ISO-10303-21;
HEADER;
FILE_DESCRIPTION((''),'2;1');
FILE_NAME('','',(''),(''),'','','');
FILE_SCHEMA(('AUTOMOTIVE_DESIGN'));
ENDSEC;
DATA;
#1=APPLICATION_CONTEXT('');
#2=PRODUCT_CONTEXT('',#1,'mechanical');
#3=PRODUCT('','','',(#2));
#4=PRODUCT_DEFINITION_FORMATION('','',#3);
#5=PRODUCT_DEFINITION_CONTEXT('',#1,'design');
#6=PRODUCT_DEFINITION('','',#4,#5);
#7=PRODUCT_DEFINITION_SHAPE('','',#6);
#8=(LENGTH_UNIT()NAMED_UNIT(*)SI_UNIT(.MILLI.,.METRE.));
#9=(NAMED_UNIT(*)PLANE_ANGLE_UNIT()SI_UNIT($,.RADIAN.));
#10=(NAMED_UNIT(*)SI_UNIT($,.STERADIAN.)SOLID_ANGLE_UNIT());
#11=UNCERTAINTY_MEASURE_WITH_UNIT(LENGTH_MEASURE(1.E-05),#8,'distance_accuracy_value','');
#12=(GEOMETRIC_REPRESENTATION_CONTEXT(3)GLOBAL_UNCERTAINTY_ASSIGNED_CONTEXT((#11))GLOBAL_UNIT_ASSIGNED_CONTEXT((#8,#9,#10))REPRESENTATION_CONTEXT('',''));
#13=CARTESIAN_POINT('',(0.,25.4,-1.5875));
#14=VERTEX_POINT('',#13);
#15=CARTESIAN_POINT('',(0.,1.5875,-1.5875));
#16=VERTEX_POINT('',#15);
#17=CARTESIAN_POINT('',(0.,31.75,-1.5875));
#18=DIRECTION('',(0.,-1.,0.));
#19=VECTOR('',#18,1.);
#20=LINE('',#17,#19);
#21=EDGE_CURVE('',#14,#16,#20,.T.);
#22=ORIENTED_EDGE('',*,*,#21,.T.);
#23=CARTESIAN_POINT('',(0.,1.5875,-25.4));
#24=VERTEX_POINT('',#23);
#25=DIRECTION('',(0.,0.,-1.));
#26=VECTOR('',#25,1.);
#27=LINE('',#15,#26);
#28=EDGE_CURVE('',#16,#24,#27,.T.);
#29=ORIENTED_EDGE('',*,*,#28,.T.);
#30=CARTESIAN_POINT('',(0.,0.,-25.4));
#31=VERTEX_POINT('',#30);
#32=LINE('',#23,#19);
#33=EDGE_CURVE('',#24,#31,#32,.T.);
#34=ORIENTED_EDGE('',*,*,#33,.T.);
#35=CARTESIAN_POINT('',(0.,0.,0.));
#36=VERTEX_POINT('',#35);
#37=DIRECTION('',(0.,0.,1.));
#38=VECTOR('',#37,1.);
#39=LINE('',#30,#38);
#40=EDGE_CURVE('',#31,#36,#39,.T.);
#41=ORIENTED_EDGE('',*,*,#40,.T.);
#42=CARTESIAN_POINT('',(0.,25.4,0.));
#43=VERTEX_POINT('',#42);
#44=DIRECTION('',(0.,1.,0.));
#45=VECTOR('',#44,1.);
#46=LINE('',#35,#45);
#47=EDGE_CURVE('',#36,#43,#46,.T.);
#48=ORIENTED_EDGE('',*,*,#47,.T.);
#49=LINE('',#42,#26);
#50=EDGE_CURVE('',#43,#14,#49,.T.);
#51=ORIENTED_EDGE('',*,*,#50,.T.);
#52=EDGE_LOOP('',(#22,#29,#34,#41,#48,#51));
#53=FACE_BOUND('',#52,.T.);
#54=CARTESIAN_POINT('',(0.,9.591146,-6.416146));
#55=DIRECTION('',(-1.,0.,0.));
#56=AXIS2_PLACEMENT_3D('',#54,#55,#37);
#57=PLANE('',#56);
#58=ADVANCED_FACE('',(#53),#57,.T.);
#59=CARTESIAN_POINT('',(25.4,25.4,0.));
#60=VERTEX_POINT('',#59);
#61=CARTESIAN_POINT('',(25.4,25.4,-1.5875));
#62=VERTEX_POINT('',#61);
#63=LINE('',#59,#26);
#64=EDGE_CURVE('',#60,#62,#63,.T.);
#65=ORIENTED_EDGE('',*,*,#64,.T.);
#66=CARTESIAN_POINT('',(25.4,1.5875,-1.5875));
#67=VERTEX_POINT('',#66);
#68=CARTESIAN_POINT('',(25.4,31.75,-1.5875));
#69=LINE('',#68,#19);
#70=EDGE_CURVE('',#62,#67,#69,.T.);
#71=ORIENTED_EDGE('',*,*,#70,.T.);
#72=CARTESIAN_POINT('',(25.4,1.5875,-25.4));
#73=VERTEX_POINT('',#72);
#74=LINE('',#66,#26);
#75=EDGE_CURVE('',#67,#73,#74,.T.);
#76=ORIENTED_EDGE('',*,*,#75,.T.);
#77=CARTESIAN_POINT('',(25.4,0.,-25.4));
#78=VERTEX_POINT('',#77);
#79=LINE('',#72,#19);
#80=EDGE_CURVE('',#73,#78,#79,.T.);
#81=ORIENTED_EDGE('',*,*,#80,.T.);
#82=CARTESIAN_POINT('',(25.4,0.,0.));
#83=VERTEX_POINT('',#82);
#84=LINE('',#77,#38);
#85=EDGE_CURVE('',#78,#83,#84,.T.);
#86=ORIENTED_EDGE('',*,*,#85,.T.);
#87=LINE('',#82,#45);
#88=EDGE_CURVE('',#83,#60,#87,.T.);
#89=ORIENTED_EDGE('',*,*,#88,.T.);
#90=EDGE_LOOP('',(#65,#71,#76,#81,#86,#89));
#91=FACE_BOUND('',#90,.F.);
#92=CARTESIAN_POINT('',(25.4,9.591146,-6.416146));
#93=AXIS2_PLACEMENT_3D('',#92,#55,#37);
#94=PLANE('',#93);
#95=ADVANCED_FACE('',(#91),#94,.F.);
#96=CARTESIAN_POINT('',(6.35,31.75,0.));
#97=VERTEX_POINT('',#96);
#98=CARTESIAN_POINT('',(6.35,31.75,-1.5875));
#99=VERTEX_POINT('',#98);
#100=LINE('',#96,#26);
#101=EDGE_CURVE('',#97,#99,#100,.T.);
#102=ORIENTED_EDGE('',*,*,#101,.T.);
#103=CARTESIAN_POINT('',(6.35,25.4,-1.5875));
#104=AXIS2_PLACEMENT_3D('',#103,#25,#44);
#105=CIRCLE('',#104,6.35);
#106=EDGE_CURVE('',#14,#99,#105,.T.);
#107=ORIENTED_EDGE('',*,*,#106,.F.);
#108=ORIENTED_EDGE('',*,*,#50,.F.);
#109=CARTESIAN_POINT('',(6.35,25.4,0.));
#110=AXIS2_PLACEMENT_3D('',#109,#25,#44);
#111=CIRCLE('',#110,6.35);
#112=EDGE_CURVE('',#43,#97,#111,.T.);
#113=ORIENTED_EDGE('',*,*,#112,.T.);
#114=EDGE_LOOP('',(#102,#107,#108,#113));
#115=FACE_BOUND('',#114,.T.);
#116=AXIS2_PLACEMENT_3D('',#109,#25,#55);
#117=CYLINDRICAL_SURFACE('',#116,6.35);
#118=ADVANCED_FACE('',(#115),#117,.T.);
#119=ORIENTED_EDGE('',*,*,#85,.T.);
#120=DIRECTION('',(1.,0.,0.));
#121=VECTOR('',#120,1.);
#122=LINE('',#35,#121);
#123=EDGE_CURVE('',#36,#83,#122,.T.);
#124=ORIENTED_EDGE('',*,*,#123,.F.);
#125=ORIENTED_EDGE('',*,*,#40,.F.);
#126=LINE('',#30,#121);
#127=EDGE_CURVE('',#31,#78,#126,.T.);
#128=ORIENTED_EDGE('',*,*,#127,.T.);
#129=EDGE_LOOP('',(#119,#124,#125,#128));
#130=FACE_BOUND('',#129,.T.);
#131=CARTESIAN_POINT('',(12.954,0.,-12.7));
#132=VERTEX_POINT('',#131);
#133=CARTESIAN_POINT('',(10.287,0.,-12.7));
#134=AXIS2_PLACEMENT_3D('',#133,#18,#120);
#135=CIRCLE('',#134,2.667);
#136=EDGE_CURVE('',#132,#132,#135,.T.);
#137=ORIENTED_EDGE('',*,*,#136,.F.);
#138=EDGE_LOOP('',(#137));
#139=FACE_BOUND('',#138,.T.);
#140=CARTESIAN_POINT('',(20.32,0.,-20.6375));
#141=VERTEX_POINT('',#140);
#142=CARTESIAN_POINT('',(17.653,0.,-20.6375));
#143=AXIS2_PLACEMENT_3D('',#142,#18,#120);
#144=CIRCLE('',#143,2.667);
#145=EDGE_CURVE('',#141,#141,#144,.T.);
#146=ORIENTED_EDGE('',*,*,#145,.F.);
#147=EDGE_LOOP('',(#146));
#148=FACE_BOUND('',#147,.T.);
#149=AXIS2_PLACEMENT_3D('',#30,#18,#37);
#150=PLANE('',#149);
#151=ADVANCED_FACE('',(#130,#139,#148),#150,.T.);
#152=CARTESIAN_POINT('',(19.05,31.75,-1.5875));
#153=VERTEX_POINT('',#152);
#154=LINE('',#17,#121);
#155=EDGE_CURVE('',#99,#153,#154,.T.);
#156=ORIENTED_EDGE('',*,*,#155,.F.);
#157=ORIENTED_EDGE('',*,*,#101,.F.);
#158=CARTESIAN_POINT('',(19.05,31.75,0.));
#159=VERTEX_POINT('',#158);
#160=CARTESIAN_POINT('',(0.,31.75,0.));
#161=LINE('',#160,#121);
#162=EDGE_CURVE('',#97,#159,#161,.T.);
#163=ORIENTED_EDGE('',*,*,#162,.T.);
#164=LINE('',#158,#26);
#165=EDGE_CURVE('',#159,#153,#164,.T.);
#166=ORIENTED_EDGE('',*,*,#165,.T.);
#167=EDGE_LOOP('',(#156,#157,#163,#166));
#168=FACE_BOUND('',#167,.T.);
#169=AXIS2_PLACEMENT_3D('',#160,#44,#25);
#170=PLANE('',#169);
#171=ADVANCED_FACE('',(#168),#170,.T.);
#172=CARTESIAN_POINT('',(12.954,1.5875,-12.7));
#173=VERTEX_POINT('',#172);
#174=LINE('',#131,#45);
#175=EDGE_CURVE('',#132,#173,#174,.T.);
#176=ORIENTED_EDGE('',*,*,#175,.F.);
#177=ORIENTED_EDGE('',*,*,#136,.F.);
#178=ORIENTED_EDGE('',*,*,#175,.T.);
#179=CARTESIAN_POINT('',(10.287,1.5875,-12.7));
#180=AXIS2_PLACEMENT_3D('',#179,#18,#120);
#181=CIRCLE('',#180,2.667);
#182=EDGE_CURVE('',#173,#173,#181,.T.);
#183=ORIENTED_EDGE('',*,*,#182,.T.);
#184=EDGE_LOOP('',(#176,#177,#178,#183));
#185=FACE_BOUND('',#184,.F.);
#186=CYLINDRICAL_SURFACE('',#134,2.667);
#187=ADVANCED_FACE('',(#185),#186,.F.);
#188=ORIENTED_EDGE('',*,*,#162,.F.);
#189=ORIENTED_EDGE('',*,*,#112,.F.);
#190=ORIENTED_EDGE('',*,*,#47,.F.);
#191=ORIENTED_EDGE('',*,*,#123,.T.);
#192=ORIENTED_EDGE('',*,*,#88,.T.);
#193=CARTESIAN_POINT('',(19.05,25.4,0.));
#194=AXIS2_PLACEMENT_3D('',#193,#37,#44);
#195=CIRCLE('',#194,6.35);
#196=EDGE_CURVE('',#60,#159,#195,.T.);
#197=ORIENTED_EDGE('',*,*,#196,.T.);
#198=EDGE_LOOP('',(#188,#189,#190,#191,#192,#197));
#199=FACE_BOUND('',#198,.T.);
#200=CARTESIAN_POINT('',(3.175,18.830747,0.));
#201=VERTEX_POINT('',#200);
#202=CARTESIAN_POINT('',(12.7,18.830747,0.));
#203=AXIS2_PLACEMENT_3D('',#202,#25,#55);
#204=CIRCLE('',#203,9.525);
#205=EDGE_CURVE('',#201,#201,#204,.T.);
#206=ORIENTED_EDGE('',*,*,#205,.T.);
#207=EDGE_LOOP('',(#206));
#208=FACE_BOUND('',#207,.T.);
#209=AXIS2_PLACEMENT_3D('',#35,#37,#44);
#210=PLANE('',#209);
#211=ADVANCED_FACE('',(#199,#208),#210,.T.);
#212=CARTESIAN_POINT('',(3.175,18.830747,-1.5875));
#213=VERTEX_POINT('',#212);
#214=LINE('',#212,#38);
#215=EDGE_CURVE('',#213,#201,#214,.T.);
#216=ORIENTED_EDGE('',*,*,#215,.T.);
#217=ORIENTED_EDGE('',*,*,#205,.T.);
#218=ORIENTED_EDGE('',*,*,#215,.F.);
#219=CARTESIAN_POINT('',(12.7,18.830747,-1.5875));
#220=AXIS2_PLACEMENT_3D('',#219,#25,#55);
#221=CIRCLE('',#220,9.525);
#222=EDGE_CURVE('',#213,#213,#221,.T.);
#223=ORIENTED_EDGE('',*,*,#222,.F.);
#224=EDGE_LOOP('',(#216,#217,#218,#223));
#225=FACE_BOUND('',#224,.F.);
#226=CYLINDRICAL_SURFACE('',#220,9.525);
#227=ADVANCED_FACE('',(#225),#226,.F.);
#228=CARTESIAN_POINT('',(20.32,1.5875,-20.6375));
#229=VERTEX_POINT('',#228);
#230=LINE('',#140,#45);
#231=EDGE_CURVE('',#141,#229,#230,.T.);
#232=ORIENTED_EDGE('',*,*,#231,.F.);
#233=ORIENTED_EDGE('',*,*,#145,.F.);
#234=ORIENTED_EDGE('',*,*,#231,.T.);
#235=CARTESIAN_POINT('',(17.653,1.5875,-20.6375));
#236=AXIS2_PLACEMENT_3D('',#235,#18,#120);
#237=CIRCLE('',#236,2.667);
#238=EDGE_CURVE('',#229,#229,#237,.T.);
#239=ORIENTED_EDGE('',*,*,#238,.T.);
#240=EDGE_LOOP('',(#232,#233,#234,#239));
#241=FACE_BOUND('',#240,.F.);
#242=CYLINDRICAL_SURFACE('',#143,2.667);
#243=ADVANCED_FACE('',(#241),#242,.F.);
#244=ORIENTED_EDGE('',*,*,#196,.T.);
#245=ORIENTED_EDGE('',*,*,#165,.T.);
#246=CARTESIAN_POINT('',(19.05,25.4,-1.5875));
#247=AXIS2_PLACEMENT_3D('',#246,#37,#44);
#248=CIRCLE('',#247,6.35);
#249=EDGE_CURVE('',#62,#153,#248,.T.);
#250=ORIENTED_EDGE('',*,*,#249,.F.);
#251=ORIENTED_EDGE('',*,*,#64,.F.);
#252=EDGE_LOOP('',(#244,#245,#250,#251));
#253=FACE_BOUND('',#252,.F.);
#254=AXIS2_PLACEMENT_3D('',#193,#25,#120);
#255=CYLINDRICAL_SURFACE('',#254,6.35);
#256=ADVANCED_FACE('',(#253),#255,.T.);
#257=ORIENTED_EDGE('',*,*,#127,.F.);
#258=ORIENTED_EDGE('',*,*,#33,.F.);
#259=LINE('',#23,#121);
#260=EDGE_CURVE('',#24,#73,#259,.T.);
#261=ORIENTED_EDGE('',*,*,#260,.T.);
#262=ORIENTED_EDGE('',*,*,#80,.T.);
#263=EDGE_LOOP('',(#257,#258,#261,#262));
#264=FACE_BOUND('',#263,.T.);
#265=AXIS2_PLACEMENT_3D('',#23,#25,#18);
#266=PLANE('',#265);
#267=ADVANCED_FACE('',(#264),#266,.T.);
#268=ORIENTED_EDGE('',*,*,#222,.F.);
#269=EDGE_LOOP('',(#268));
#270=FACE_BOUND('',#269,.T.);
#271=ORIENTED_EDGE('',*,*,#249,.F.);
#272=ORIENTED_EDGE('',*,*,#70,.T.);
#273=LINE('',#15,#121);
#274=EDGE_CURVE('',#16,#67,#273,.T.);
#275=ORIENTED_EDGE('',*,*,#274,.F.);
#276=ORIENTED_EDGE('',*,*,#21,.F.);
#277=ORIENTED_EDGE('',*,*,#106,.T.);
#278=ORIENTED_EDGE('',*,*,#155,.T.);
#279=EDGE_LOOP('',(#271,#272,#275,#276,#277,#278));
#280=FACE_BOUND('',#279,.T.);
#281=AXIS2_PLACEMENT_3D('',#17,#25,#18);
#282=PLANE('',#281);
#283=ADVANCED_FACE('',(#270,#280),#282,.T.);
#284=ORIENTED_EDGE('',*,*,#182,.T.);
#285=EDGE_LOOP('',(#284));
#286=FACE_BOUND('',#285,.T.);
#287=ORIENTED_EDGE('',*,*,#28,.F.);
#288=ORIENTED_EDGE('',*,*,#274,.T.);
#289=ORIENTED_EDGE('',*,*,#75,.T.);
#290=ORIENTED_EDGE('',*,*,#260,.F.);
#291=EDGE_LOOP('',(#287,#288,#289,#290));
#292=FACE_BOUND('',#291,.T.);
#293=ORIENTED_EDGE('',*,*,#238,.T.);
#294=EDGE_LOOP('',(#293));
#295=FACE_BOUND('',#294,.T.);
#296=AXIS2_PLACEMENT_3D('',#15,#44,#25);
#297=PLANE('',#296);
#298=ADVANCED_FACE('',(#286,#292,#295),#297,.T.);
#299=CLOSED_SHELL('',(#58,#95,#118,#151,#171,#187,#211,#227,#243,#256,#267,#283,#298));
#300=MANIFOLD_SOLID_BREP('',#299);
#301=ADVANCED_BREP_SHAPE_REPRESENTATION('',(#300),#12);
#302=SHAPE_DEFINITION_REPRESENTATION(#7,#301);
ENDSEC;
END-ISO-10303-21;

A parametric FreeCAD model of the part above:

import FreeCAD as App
import Part
import Sketcher

V = App.Vector
Q = App.Units.Quantity


def edges_at(feature, points):
    """Names of the edges that pass closest to the given points."""
    edges = feature.Shape.Edges
    near = lambda p: min(range(len(edges)), key=lambda i: edges[i].distToShape(Part.Vertex(*p))[0])
    return sorted({f"Edge{near(p) + 1}" for p in points})


def add_polygon(sketch, points):
    """Adds a closed chain of lines whose ends are joined by coincident constraints."""
    first, n = sketch.GeometryCount, len(points)
    for a, b in zip(points, points[1:] + points[:1]):
        sketch.addGeometry(Part.LineSegment(App.Vector(*a, 0), App.Vector(*b, 0)), False)
    for i in range(n):
        sketch.addConstraint(Sketcher.Constraint("Coincident", first + i, 2, first + (i + 1) % n, 1))

doc = App.newDocument("Part")
body = doc.addObject("PartDesign::Body", "Body")

# Sketch on YZ plane
sketch1 = body.newObject("Sketcher::SketchObject", "Sketch")
sketch1.AttachmentSupport = (doc.getObject("YZ_Plane"), [""])
sketch1.MapMode = "FlatFace"
add_polygon(sketch1, [(1.6, -25.4), (1.6, -1.6), (31.8, -1.6), (31.8, 0), (0, 0), (0, -25.4)])  # lines 0-5
sketch1.addConstraint(Sketcher.Constraint("Vertical", 0))
sketch1.addConstraint(Sketcher.Constraint("Horizontal", 1))
sketch1.addConstraint(Sketcher.Constraint("Vertical", 2))
sketch1.addConstraint(Sketcher.Constraint("Horizontal", 3))
sketch1.addConstraint(Sketcher.Constraint("Vertical", 4))
sketch1.addConstraint(Sketcher.Constraint("Horizontal", 5))
sketch1.addConstraint(Sketcher.Constraint("Coincident", 3, 2, -1, 1))
sketch1.addConstraint(Sketcher.Constraint("Equal", 5, 2))
sketch1.addConstraint(Sketcher.Constraint("DistanceY", 4, 2, 4, 1, Q("1 in")))
sketch1.addConstraint(Sketcher.Constraint("DistanceX", 3, 2, 3, 1, Q("1.25 in")))
sketch1.addConstraint(Sketcher.Constraint("DistanceX", 1, 1, 1, 2, Q("1.1875 in")))
pad1 = body.newObject("PartDesign::Pad", "Pad")
pad1.Profile = sketch1
pad1.Length = Q("1 in")

# Sketch on XY plane
sketch2 = body.newObject("Sketcher::SketchObject", "Sketch001")
sketch2.AttachmentSupport = (doc.getObject("XY_Plane"), [""])
sketch2.MapMode = "FlatFace"
sketch2.AttachmentOffset = App.Placement(V(0, 0, -0.0625 * 25.4), App.Rotation())
sketch2.addGeometry(Part.Circle(V(13, 19, 0), V(0, 0, 1), 10), False)
sketch2.addConstraint(Sketcher.Constraint("Diameter", 0, Q("0.75 in")))
sketch2.addConstraint(Sketcher.Constraint("DistanceX", -1, 1, 0, 3, Q("0.5 in")))
sketch2.addConstraint(Sketcher.Constraint("DistanceY", -1, 1, 0, 3, 18.830747))
pocket1 = body.newObject("PartDesign::Pocket", "Pocket")
pocket1.Profile = sketch2
pocket1.Type = "UpToFirst"
pocket1.Reversed = True
doc.recompute()

fillet = body.newObject("PartDesign::Fillet", "Fillet")
fillet.Base = (pocket1, edges_at(pocket1, [(25.4, 31.75, -0.794), (0, 31.75, -0.794)]))
fillet.Radius = Q("0.25 in")

# Sketch on XZ plane
sketch3 = body.newObject("Sketcher::SketchObject", "Sketch002")
sketch3.AttachmentSupport = (doc.getObject("XZ_Plane"), [""])
sketch3.MapMode = "FlatFace"
sketch3.addGeometry(Part.Circle(V(17.7, -20.6, 0), V(0, 0, 1), 2.7), False)
sketch3.addConstraint(Sketcher.Constraint("Diameter", 0, Q("0.21 in")))
sketch3.addConstraint(Sketcher.Constraint("DistanceX", -1, 1, 0, 3, Q("0.695 in")))
sketch3.addConstraint(Sketcher.Constraint("DistanceY", 0, 3, -1, 1, Q("0.8125 in")))
pocket2 = body.newObject("PartDesign::Pocket", "Pocket001")
pocket2.Profile = sketch3
pocket2.Type = "UpToFirst"

# Sketch on XZ plane
sketch4 = body.newObject("Sketcher::SketchObject", "Sketch003")
sketch4.AttachmentSupport = (doc.getObject("XZ_Plane"), [""])
sketch4.MapMode = "FlatFace"
sketch4.addGeometry(Part.Circle(V(10.3, -12.7, 0), V(0, 0, 1), 2.7), False)
sketch4.addConstraint(Sketcher.Constraint("Diameter", 0, Q("0.21 in")))
sketch4.addConstraint(Sketcher.Constraint("DistanceY", 0, 3, -1, 1, Q("0.5 in")))
sketch4.addConstraint(Sketcher.Constraint("DistanceX", -1, 1, 0, 3, Q("0.405 in")))
pocket3 = body.newObject("PartDesign::Pocket", "Pocket002")
pocket3.Profile = sketch4
pocket3.Type = "UpToFirst"

doc.recompute()
